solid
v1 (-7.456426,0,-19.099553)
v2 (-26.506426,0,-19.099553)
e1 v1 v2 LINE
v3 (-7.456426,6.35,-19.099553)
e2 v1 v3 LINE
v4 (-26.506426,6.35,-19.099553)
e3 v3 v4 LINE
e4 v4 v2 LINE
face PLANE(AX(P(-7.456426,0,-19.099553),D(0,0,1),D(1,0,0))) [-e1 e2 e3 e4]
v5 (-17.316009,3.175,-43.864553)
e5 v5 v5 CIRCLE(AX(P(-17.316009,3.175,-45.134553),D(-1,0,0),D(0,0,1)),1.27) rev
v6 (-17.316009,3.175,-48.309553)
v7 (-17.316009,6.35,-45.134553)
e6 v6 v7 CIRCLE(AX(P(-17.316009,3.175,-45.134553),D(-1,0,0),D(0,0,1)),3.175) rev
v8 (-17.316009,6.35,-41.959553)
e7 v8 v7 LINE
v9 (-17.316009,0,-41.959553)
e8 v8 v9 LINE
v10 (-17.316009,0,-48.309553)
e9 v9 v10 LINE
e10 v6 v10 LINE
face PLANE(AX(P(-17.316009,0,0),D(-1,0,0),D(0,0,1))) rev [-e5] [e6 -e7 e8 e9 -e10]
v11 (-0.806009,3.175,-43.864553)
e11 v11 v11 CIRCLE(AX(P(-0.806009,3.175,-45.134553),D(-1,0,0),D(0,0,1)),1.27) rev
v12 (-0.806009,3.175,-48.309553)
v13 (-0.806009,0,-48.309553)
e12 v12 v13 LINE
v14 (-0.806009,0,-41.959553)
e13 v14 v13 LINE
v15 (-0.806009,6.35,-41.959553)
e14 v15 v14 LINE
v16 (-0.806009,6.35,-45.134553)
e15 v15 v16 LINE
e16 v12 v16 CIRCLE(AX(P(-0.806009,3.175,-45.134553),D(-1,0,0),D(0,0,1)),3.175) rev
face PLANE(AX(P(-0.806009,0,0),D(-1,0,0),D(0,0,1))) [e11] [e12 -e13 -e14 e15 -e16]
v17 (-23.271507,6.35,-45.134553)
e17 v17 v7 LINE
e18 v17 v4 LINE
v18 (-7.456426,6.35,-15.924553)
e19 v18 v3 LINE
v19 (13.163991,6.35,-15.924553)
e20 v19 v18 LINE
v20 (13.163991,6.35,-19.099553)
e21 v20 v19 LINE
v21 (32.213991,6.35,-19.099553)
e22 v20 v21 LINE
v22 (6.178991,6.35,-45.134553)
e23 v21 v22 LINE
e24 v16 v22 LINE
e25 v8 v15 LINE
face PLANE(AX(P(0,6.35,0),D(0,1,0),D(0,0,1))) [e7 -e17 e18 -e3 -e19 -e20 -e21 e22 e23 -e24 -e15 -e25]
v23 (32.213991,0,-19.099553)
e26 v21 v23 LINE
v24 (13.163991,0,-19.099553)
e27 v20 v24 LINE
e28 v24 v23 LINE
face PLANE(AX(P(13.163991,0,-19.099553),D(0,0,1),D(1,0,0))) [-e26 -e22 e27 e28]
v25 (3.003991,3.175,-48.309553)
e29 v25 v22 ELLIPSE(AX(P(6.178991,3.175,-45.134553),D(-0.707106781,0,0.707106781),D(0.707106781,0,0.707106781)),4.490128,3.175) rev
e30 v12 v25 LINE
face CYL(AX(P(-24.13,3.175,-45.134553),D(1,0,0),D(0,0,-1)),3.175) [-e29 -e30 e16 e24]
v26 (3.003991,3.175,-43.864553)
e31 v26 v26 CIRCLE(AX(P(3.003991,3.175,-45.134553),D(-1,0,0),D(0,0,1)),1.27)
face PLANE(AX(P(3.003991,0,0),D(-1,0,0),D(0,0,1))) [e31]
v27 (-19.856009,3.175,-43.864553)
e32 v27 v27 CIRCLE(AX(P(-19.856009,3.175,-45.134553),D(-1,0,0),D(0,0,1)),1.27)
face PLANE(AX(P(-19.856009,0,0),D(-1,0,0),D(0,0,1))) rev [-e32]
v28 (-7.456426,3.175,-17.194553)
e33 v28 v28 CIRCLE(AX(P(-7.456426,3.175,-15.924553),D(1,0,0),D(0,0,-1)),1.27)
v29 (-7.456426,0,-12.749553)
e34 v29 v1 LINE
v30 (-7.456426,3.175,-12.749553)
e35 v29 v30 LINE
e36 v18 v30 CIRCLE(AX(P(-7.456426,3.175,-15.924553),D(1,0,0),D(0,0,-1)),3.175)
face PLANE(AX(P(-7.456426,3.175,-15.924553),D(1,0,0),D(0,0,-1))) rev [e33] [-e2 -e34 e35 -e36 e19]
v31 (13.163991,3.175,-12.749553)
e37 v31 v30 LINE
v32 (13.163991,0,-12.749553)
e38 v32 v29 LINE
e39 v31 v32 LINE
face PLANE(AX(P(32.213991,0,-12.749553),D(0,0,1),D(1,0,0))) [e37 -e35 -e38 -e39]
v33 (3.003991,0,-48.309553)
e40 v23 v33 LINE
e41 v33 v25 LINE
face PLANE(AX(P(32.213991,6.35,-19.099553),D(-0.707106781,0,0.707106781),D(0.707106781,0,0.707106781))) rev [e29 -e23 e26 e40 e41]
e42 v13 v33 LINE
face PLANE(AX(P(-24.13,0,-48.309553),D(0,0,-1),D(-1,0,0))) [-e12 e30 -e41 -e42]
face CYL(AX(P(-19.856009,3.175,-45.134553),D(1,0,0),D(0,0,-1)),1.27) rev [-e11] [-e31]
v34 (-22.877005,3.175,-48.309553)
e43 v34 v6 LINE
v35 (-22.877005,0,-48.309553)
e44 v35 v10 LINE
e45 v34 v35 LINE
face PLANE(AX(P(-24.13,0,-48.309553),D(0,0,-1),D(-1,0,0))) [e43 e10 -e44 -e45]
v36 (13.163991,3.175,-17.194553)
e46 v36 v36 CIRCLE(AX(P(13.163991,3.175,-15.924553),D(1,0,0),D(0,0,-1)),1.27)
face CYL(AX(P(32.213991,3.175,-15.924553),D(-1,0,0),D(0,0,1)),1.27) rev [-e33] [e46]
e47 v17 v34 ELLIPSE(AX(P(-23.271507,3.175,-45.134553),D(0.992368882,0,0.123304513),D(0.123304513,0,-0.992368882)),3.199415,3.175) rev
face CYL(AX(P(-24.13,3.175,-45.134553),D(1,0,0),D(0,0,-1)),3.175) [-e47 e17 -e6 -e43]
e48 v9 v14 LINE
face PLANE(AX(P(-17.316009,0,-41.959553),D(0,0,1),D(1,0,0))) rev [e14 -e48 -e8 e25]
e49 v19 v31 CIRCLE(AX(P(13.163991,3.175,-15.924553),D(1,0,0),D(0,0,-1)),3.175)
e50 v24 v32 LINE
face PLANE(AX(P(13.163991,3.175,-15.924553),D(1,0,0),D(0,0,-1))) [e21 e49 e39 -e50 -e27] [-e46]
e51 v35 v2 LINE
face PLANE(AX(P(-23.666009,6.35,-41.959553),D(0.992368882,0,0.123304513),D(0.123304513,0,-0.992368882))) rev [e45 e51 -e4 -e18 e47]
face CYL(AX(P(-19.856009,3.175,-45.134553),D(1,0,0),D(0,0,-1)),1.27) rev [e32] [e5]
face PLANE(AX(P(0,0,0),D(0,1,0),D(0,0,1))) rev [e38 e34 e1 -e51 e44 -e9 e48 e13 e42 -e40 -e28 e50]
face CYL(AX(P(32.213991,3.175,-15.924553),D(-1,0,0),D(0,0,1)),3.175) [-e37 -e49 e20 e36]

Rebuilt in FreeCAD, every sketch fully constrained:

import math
import FreeCAD as App
import Part
import Sketcher
Q = App.Units.Quantity


def add_polygon(sketch, points):
    """Adds a closed chain of lines whose ends are joined by coincident constraints."""
    first, n = sketch.GeometryCount, len(points)
    for a, b in zip(points, points[1:] + points[:1]):
        sketch.addGeometry(Part.LineSegment(App.Vector(*a, 0), App.Vector(*b, 0)), False)
    for i in range(n):
        sketch.addConstraint(Sketcher.Constraint("Coincident", first + i, 2, first + (i + 1) % n, 1))

doc = App.newDocument("Part")
params = doc.addObject("Spreadsheet::Sheet", "Params")
for row, (alias, value) in enumerate([
    ("sketch1_width", "1.3 in"),
    ("pad1_length", "0.25 in"),
    ("sketch2_diameter", "0.1 in"),
    ("sketch2_radius", "0.125 in"),
    ("sketch2_width", "0.25 in"),
    ("pad2_length", "32.213991 mm"),
    ("pad2_length2", "26.506426 mm"),
    ("sketch3_diameter", "0.1 in"),
    ("sketch3_radius", "0.125 in"),
    ("sketch3_width", "0.25 in"),
    ("pocket1_length", "0.75 in"),
    ("sketch4_diameter", "0.1 in"),
    ("sketch4_radius", "0.125 in"),
    ("sketch4_width", "0.25 in"),
    ("pocket2_length", "0.75 in"),
    ("sketch5_radius", "0.125 in"),
    ("sketch5_width", "0.25 in"),
    ("pad3_length", "0.75 in"),
    ("pad3_length2", "0.95 in"),
    ("pocket3_length", "0.75 in"),
    ("sketch7_diameter", "0.1 in"),
    ("sketch7_width", "0.25 in"),
    ("pocket4_length", "0.65 in"),
    ("sketch8_diameter", "0.1 in"),
    ("pocket5_length", "0.9 in"),
], start=1):
    params.set(f"A{row}", alias)
    params.set(f"B{row}", "=" + value)
    params.setAlias(f"B{row}", alias)

body = doc.addObject("PartDesign::Body", "Body")

sketch1 = doc.addObject("Sketcher::SketchObject", "Sketch")
body.addObject(sketch1)
sketch1.AttachmentSupport = (doc.XZ_Plane, [""])
sketch1.MapMode = "FlatFace"
add_polygon(sketch1, [(-26.506426, -19.099553), (32.213991, -19.099553), (9.353991, -41.959553), (-23.666009, -41.959553)])
sketch1.addConstraint([
    Sketcher.Constraint("Horizontal", 0),
    Sketcher.Constraint("Horizontal", 2),
    Sketcher.Constraint("DistanceX", 2, 2, 2, 1, Q("1.3 in")),
    Sketcher.Constraint("Angle", 1, Q("-135 deg")),
    Sketcher.Constraint("DistanceX", 1, 2, 0, 2, Q("0.9 in")),
    Sketcher.Constraint("Distance", 3, Q("23.035789 mm")),
    Sketcher.Constraint("DistanceX", -1, 1, 0, 2, Q("32.213991 mm")),
    Sketcher.Constraint("DistanceY", 0, 2, -1, 1, Q("19.099553 mm")),
])
sketch1.setExpression("Constraints[6]", "Params.sketch1_width")
pad1 = doc.addObject("PartDesign::Pad", "Pad")
body.addObject(pad1)
pad1.Profile = sketch1
pad1.setExpression("Length", "Params.pad1_length")
pad1.Reversed = True

sketch2 = doc.addObject("Sketcher::SketchObject", "Sketch001")
body.addObject(sketch2)
sketch2.AttachmentSupport = (doc.YZ_Plane, [""])
sketch2.MapMode = "FlatFace"
sketch2.addGeometry([
    Part.LineSegment(App.Vector(0, -19.099553, 0), App.Vector(6.35, -19.099553, 0)),
    Part.LineSegment(App.Vector(6.35, -19.099553, 0), App.Vector(6.35, -15.924553, 0)),
    Part.ArcOfCircle(Part.Circle(App.Vector(3.175, -15.924553, 0), App.Vector(0, 0, 1), 3.175), math.radians(0), math.radians(90)),
    Part.LineSegment(App.Vector(3.175, -12.749553, 0), App.Vector(0, -12.749553, 0)),
    Part.LineSegment(App.Vector(0, -12.749553, 0), App.Vector(0, -19.099553, 0)),
    Part.Circle(App.Vector(3.175, -15.924553, 0), App.Vector(0, 0, 1), 1.27),
], False)
sketch2.addConstraint([
    Sketcher.Constraint("Coincident", 0, 2, 1, 1),
    Sketcher.Constraint("Tangent", 1, 2, 2, 1),
    Sketcher.Constraint("Tangent", 2, 2, 3, 1),
    Sketcher.Constraint("Coincident", 3, 2, 4, 1),
    Sketcher.Constraint("Coincident", 4, 2, 0, 1),
    Sketcher.Constraint("Horizontal", 0),
    Sketcher.Constraint("Vertical", 1),
    Sketcher.Constraint("Horizontal", 3),
    Sketcher.Constraint("Vertical", 4),
    Sketcher.Constraint("Coincident", 5, 3, 2, 3),
    Sketcher.Constraint("PointOnObject", 3, 2, -2),
    Sketcher.Constraint("Equal", 3, 1),
    Sketcher.Constraint("Diameter", 5, Q("0.1 in")),
    Sketcher.Constraint("Radius", 2, Q("0.125 in")),
    Sketcher.Constraint("DistanceX", 0, 1, 0, 2, Q("0.25 in")),
    Sketcher.Constraint("DistanceY", 2, 3, -1, 1, Q("15.924553 mm")),
])
sketch2.setExpression("Constraints[12]", "Params.sketch2_diameter")
sketch2.setExpression("Constraints[13]", "Params.sketch2_radius")
sketch2.setExpression("Constraints[14]", "Params.sketch2_width")
pad2 = doc.addObject("PartDesign::Pad", "Pad001")
body.addObject(pad2)
pad2.Profile = sketch2
pad2.Type = "TwoLengths"
pad2.setExpression("Length", "Params.pad2_length")
pad2.setExpression("Length2", "Params.pad2_length2")

sketch3 = doc.addObject("Sketcher::SketchObject", "Sketch002")
body.addObject(sketch3)
sketch3.AttachmentSupport = (doc.YZ_Plane, [""])
sketch3.MapMode = "FlatFace"
sketch3.AttachmentOffset = App.Placement(App.Vector(0, 0, 32.213991), App.Rotation())
sketch3.addGeometry([
    Part.ArcOfCircle(Part.Circle(App.Vector(3.175, -15.924553, 0), App.Vector(0, 0, 1), 3.175), math.radians(0), math.radians(90)),
    Part.LineSegment(App.Vector(3.175, -12.749553, 0), App.Vector(0, -12.749553, 0)),
    Part.LineSegment(App.Vector(0, -12.749553, 0), App.Vector(0, -19.099553, 0)),
    Part.LineSegment(App.Vector(0, -19.099553, 0), App.Vector(6.35, -19.099553, 0)),
    Part.LineSegment(App.Vector(6.35, -19.099553, 0), App.Vector(6.35, -15.924553, 0)),
    Part.Circle(App.Vector(3.175, -15.924553, 0), App.Vector(0, 0, 1), 1.27),
], False)
sketch3.addConstraint([
    Sketcher.Constraint("Tangent", 0, 2, 1, 1),
    Sketcher.Constraint("Coincident", 1, 2, 2, 1),
    Sketcher.Constraint("Coincident", 2, 2, 3, 1),
    Sketcher.Constraint("Coincident", 3, 2, 4, 1),
    Sketcher.Constraint("Tangent", 4, 2, 0, 1),
    Sketcher.Constraint("Horizontal", 1),
    Sketcher.Constraint("Vertical", 2),
    Sketcher.Constraint("Horizontal", 3),
    Sketcher.Constraint("Vertical", 4),
    Sketcher.Constraint("Coincident", 5, 3, 0, 3),
    Sketcher.Constraint("PointOnObject", 1, 2, -2),
    Sketcher.Constraint("Equal", 3, 2),
    Sketcher.Constraint("Diameter", 5, Q("0.1 in")),
    Sketcher.Constraint("Radius", 0, Q("0.125 in")),
    Sketcher.Constraint("DistanceX", 3, 1, 3, 2, Q("0.25 in")),
    Sketcher.Constraint("DistanceY", 0, 3, -1, 1, Q("15.924553 mm")),
])
sketch3.setExpression("Constraints[12]", "Params.sketch3_diameter")
sketch3.setExpression("Constraints[13]", "Params.sketch3_radius")
sketch3.setExpression("Constraints[14]", "Params.sketch3_width")
pocket1 = doc.addObject("PartDesign::Pocket", "Pocket")
body.addObject(pocket1)
pocket1.Profile = sketch3
pocket1.setExpression("Length", "Params.pocket1_length")

sketch4 = doc.addObject("Sketcher::SketchObject", "Sketch003")
body.addObject(sketch4)
sketch4.AttachmentSupport = (doc.YZ_Plane, [""])
sketch4.MapMode = "FlatFace"
sketch4.AttachmentOffset = App.Placement(App.Vector(0, 0, -26.506426), App.Rotation())
sketch4.addGeometry([
    Part.ArcOfCircle(Part.Circle(App.Vector(3.175, -15.924553, 0), App.Vector(0, 0, 1), 3.175), math.radians(0), math.radians(90)),
    Part.LineSegment(App.Vector(3.175, -12.749553, 0), App.Vector(0, -12.749553, 0)),
    Part.LineSegment(App.Vector(0, -12.749553, 0), App.Vector(0, -19.099553, 0)),
    Part.LineSegment(App.Vector(0, -19.099553, 0), App.Vector(6.35, -19.099553, 0)),
    Part.LineSegment(App.Vector(6.35, -19.099553, 0), App.Vector(6.35, -15.924553, 0)),
    Part.Circle(App.Vector(3.175, -15.924553, 0), App.Vector(0, 0, 1), 1.27),
], False)
sketch4.addConstraint([
    Sketcher.Constraint("Tangent", 0, 2, 1, 1),
    Sketcher.Constraint("Coincident", 1, 2, 2, 1),
    Sketcher.Constraint("Coincident", 2, 2, 3, 1),
    Sketcher.Constraint("Coincident", 3, 2, 4, 1),
    Sketcher.Constraint("Tangent", 4, 2, 0, 1),
    Sketcher.Constraint("Horizontal", 1),
    Sketcher.Constraint("Vertical", 2),
    Sketcher.Constraint("Horizontal", 3),
    Sketcher.Constraint("Vertical", 4),
    Sketcher.Constraint("Coincident", 5, 3, 0, 3),
    Sketcher.Constraint("PointOnObject", 1, 2, -2),
    Sketcher.Constraint("Equal", 3, 2),
    Sketcher.Constraint("Diameter", 5, Q("0.1 in")),
    Sketcher.Constraint("Radius", 0, Q("0.125 in")),
    Sketcher.Constraint("DistanceX", 3, 1, 3, 2, Q("0.25 in")),
    Sketcher.Constraint("DistanceY", 0, 3, -1, 1, Q("15.924553 mm")),
])
sketch4.setExpression("Constraints[12]", "Params.sketch4_diameter")
sketch4.setExpression("Constraints[13]", "Params.sketch4_radius")
sketch4.setExpression("Constraints[14]", "Params.sketch4_width")
pocket2 = doc.addObject("PartDesign::Pocket", "Pocket001")
body.addObject(pocket2)
pocket2.Profile = sketch4
pocket2.setExpression("Length", "Params.pocket2_length")
pocket2.Reversed = True

sketch5 = doc.addObject("Sketcher::SketchObject", "Sketch004")
body.addObject(sketch5)
sketch5.AttachmentSupport = (doc.YZ_Plane, [""])
sketch5.MapMode = "FlatFace"
sketch5.addGeometry([
    Part.LineSegment(App.Vector(0, -48.309553, 0), App.Vector(3.175, -48.309553, 0)),
    Part.ArcOfCircle(Part.Circle(App.Vector(3.175, -45.134553, 0), App.Vector(0, 0, 1), 3.175), math.radians(-90), math.radians(0)),
    Part.LineSegment(App.Vector(6.35, -45.134553, 0), App.Vector(6.35, -41.959553, 0)),
    Part.LineSegment(App.Vector(6.35, -41.959553, 0), App.Vector(0, -41.959553, 0)),
    Part.LineSegment(App.Vector(0, -41.959553, 0), App.Vector(0, -48.309553, 0)),
], False)
sketch5.addConstraint([
    Sketcher.Constraint("Tangent", 0, 2, 1, 1),
    Sketcher.Constraint("Tangent", 1, 2, 2, 1),
    Sketcher.Constraint("Coincident", 2, 2, 3, 1),
    Sketcher.Constraint("Coincident", 3, 2, 4, 1),
    Sketcher.Constraint("Coincident", 4, 2, 0, 1),
    Sketcher.Constraint("Horizontal", 0),
    Sketcher.Constraint("Vertical", 2),
    Sketcher.Constraint("Horizontal", 3),
    Sketcher.Constraint("Vertical", 4),
    Sketcher.Constraint("PointOnObject", 3, 2, -2),
    Sketcher.Constraint("Equal", 0, 2),
    Sketcher.Constraint("Radius", 1, Q("0.125 in")),
    Sketcher.Constraint("DistanceX", 3, 2, 3, 1, Q("0.25 in")),
    Sketcher.Constraint("DistanceY", 1, 3, -1, 1, Q("45.134553 mm")),
])
sketch5.setExpression("Constraints[11]", "Params.sketch5_radius")
sketch5.setExpression("Constraints[12]", "Params.sketch5_width")
pad3 = doc.addObject("PartDesign::Pad", "Pad002")
body.addObject(pad3)
pad3.Profile = sketch5
pad3.Type = "TwoLengths"
pad3.setExpression("Length", "Params.pad3_length")
pad3.setExpression("Length2", "Params.pad3_length2")

sketch6 = doc.addObject("Sketcher::SketchObject", "Sketch005")
body.addObject(sketch6)
sketch6.AttachmentSupport = (doc.XZ_Plane, [""])
sketch6.MapMode = "FlatFace"
sketch6.AttachmentOffset = App.Placement(App.Vector(0, 0, -0.25 * 25.4), App.Rotation())
add_polygon(sketch6, [(-23.666009, -41.959553), (-20.01663, -71.330174), (9.353991, -41.959553), (25.531438, -33.8554), (42.679811, -71.330174), (-40.952906, -76.015398), (-46.546209, -30.999855)])
sketch6.addConstraint([
    Sketcher.Constraint("Parallel", 0, 5),
    Sketcher.Constraint("Horizontal", 0, 2, 3, 2),
    Sketcher.Constraint("Horizontal", 1, 2, 6, 2),
    Sketcher.Constraint("Angle", 1, Q("45 deg")),
    Sketcher.Constraint("DistanceX", 6, 2, 1, 2, Q("1.3 in")),
    Sketcher.Constraint("DistanceY", 2, 2, -1, 1, Q("33.8554 mm")),
    Sketcher.Constraint("DistanceY", 4, 2, -1, 1, Q("76.015398 mm")),
    Sketcher.Constraint("DistanceX", 5, 2, 1, 2, Q("55.9002 mm")),
    Sketcher.Constraint("Distance", 1, Q("41.536331 mm")),
    Sketcher.Constraint("Distance", 2, Q("18.093842 mm")),
    Sketcher.Constraint("Distance", 4, Q("83.763851 mm")),
    Sketcher.Constraint("DistanceX", 0, 2, -1, 1, Q("20.01663 mm")),
    Sketcher.Constraint("DistanceX", -1, 1, 2, 2, Q("25.531438 mm")),
    Sketcher.Constraint("DistanceX", -1, 1, 3, 2, Q("42.679811 mm")),
])
pocket3 = doc.addObject("PartDesign::Pocket", "Pocket002")
body.addObject(pocket3)
pocket3.Profile = sketch6
pocket3.setExpression("Length", "Params.pocket3_length")
pocket3.Reversed = True

sketch7 = doc.addObject("Sketcher::SketchObject", "Sketch006")
body.addObject(sketch7)
sketch7.AttachmentSupport = (doc.YZ_Plane, [""])
sketch7.MapMode = "FlatFace"
sketch7.AttachmentOffset = App.Placement(App.Vector(0, 0, -0.806009), App.Rotation())
add_polygon(sketch7, [(6.35, -41.959553), (6.35, -48.309553), (0, -48.309553), (0, -41.959553)])
sketch7.addGeometry(Part.Circle(App.Vector(3.175, -45.134553, 0), App.Vector(0, 0, 1), 1.27), False)
sketch7.addConstraint([
    Sketcher.Constraint("Vertical", 0),
    Sketcher.Constraint("Horizontal", 1),
    Sketcher.Constraint("Vertical", 2),
    Sketcher.Constraint("Horizontal", 3),
    Sketcher.Constraint("PointOnObject", 1, 2, -2),
    Sketcher.Constraint("Equal", 3, 0),
    Sketcher.Constraint("Diameter", 4, Q("0.1 in")),
    Sketcher.Constraint("DistanceX", 1, 2, 1, 1, Q("0.25 in")),
    Sketcher.Constraint("DistanceX", -1, 1, 4, 3, Q("0.125 in")),
    Sketcher.Constraint("DistanceY", 0, 2, 4, 3, Q("0.125 in")),
    Sketcher.Constraint("DistanceY", 4, 3, -1, 1, Q("45.134553 mm")),
])
sketch7.setExpression("Constraints[10]", "Params.sketch7_diameter")
sketch7.setExpression("Constraints[11]", "Params.sketch7_width")
pocket4 = doc.addObject("PartDesign::Pocket", "Pocket003")
body.addObject(pocket4)
pocket4.Profile = sketch7
pocket4.setExpression("Length", "Params.pocket4_length")

sketch8 = doc.addObject("Sketcher::SketchObject", "Sketch007")
body.addObject(sketch8)
sketch8.AttachmentSupport = (doc.YZ_Plane, [""])
sketch8.MapMode = "FlatFace"
sketch8.AttachmentOffset = App.Placement(App.Vector(0, 0, 3.003991), App.Rotation())
sketch8.addGeometry(Part.Circle(App.Vector(3.175, -45.134553, 0), App.Vector(0, 0, 1), 1.27), False)
sketch8.addConstraint([
    Sketcher.Constraint("Diameter", 0, Q("0.1 in")),
    Sketcher.Constraint("DistanceX", -1, 1, 0, 3, Q("0.125 in")),
    Sketcher.Constraint("DistanceY", 0, 3, -1, 1, Q("45.134553 mm")),
])
sketch8.setExpression("Constraints[0]", "Params.sketch8_diameter")
pocket5 = doc.addObject("PartDesign::Pocket", "Pocket004")
body.addObject(pocket5)
pocket5.Profile = sketch8
pocket5.setExpression("Length", "Params.pocket5_length")

doc.recompute()
